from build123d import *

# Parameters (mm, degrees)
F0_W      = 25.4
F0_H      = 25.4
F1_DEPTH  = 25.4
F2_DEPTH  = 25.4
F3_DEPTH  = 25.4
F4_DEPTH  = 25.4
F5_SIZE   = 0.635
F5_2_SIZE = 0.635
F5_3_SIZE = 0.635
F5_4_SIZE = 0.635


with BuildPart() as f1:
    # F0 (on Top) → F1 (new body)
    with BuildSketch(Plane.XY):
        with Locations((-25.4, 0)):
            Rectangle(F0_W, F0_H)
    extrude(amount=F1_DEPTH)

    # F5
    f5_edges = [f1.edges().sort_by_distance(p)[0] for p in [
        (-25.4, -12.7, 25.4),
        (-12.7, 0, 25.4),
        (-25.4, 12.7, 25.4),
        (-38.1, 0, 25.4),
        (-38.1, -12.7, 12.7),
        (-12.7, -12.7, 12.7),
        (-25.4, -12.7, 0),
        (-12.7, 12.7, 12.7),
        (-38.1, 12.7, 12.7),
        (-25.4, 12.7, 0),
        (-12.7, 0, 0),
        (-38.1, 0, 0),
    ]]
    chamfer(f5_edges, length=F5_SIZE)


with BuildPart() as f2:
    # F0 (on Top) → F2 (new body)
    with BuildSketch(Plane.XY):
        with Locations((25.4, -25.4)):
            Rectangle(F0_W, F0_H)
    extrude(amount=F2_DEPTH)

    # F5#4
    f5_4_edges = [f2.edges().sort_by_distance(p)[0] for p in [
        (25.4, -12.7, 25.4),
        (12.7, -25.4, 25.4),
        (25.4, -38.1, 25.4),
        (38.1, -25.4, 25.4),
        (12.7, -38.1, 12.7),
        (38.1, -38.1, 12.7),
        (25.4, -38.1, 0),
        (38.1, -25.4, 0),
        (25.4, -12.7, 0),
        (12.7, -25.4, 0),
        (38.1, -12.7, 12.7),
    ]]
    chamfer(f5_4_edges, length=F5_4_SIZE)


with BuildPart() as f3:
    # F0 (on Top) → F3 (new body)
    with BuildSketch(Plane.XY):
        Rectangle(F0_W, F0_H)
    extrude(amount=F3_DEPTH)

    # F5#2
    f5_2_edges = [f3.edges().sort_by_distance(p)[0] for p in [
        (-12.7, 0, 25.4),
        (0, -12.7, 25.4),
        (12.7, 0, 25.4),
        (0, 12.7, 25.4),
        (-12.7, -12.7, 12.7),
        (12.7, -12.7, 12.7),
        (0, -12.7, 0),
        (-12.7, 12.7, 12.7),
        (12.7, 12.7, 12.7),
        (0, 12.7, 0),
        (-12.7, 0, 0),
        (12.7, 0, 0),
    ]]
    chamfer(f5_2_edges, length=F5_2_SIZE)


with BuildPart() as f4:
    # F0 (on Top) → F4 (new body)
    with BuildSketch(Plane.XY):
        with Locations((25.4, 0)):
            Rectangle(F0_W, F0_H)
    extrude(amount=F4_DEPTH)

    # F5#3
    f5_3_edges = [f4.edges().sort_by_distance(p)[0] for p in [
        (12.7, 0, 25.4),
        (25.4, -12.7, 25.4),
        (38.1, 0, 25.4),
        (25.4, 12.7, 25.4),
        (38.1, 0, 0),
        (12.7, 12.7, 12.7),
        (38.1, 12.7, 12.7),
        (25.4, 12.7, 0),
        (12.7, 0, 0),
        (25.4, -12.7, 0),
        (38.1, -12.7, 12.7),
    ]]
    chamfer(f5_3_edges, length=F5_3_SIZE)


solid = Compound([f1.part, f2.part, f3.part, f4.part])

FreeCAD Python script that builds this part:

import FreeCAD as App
import Part
import Sketcher
from FreeCAD import Vector
Q = App.Units.Quantity


def edges_at(feature, points):
    """Names of the edges that pass closest to the given points."""
    edges = feature.Shape.Edges
    near = lambda p: min(range(len(edges)), key=lambda i: edges[i].distToShape(Part.Vertex(*p))[0])
    return sorted({f"Edge{near(p) + 1}" for p in points})

doc = App.newDocument("Part")
body = doc.addObject("PartDesign::Body", "Body")

# Sketch on XY plane
sketch1 = body.newObject("Sketcher::SketchObject", "Sketch")
sketch1.AttachmentSupport = (doc.getObject("XY_Plane"), [""])
sketch1.MapMode = "FlatFace"
sketch1.addGeometry(Part.LineSegment(Vector(-38, 13, 0), Vector(-38, -13, 0)), False)
sketch1.addGeometry(Part.LineSegment(Vector(-38, -13, 0), Vector(-13, -13, 0)), False)
sketch1.addGeometry(Part.LineSegment(Vector(-13, -13, 0), Vector(-13, 13, 0)), False)
sketch1.addGeometry(Part.LineSegment(Vector(-13, 13, 0), Vector(-38, 13, 0)), False)
sketch1.addConstraint(Sketcher.Constraint("Coincident", 0, 2, 1, 1))
sketch1.addConstraint(Sketcher.Constraint("Coincident", 1, 2, 2, 1))
sketch1.addConstraint(Sketcher.Constraint("Coincident", 2, 2, 3, 1))
sketch1.addConstraint(Sketcher.Constraint("Coincident", 3, 2, 0, 1))
sketch1.addConstraint(Sketcher.Constraint("Vertical", 0))
sketch1.addConstraint(Sketcher.Constraint("Horizontal", 1))
sketch1.addConstraint(Sketcher.Constraint("Vertical", 2))
sketch1.addConstraint(Sketcher.Constraint("Horizontal", 3))
sketch1.addConstraint(Sketcher.Constraint("Equal", 3, 0))
sketch1.addConstraint(Sketcher.Constraint("DistanceX", 1, 1, 1, 2, Q("1 in")))
sketch1.addConstraint(Sketcher.Constraint("DistanceX", 0, 2, -1, 1, Q("1.5 in")))
sketch1.addConstraint(Sketcher.Constraint("DistanceY", 0, 2, -1, 1, Q("0.5 in")))
pad1 = body.newObject("PartDesign::Pad", "Pad")
pad1.Profile = sketch1
pad1.Length = Q("1 in")
doc.recompute()

chamfer = body.newObject("PartDesign::Chamfer", "Chamfer")
chamfer.Base = (pad1, ["Edge1"])
chamfer.UseAllEdges = True
chamfer.Size = Q("0.025 in")
body2 = doc.addObject("PartDesign::Body", "Body001")

# Sketch on XY plane
sketch2 = body2.newObject("Sketcher::SketchObject", "Sketch001")
sketch2.AttachmentSupport = (doc.getObject("XY_Plane001"), [""])
sketch2.MapMode = "FlatFace"
sketch2.addGeometry(Part.LineSegment(Vector(13, -13, 0), Vector(13, -38, 0)), False)
sketch2.addGeometry(Part.LineSegment(Vector(13, -38, 0), Vector(38, -38, 0)), False)
sketch2.addGeometry(Part.LineSegment(Vector(38, -38, 0), Vector(38, -13, 0)), False)
sketch2.addGeometry(Part.LineSegment(Vector(38, -13, 0), Vector(13, -13, 0)), False)
sketch2.addConstraint(Sketcher.Constraint("Coincident", 0, 2, 1, 1))
sketch2.addConstraint(Sketcher.Constraint("Coincident", 1, 2, 2, 1))
sketch2.addConstraint(Sketcher.Constraint("Coincident", 2, 2, 3, 1))
sketch2.addConstraint(Sketcher.Constraint("Coincident", 3, 2, 0, 1))
sketch2.addConstraint(Sketcher.Constraint("Vertical", 0))
sketch2.addConstraint(Sketcher.Constraint("Horizontal", 1))
sketch2.addConstraint(Sketcher.Constraint("Vertical", 2))
sketch2.addConstraint(Sketcher.Constraint("Horizontal", 3))
sketch2.addConstraint(Sketcher.Constraint("Equal", 3, 0))
sketch2.addConstraint(Sketcher.Constraint("DistanceX", 1, 1, 1, 2, Q("1 in")))
sketch2.addConstraint(Sketcher.Constraint("DistanceX", -1, 1, 0, 2, Q("0.5 in")))
sketch2.addConstraint(Sketcher.Constraint("DistanceY", 0, 2, -1, 1, Q("1.5 in")))
pad2 = body2.newObject("PartDesign::Pad", "Pad001")
pad2.Profile = sketch2
pad2.Length = Q("1 in")
doc.recompute()

chamfer2 = body2.newObject("PartDesign::Chamfer", "Chamfer001")
chamfer2.Base = (pad2, edges_at(pad2, [
    (25.4, -12.7, 25.4),
    (12.7, -25.4, 25.4),
    (25.4, -38.1, 25.4),
    (38.1, -25.4, 25.4),
    (12.7, -38.1, 12.7),
    (38.1, -38.1, 12.7),
    (25.4, -38.1, 0),
    (38.1, -25.4, 0),
    (25.4, -12.7, 0),
    (12.7, -25.4, 0),
    (38.1, -12.7, 12.7),
]))
chamfer2.Size = Q("0.025 in")
body3 = doc.addObject("PartDesign::Body", "Body002")

# Sketch on XY plane
sketch3 = body3.newObject("Sketcher::SketchObject", "Sketch002")
sketch3.AttachmentSupport = (doc.getObject("XY_Plane002"), [""])
sketch3.MapMode = "FlatFace"
sketch3.addGeometry(Part.LineSegment(Vector(-13, 13, 0), Vector(-13, -13, 0)), False)
sketch3.addGeometry(Part.LineSegment(Vector(-13, -13, 0), Vector(13, -13, 0)), False)
sketch3.addGeometry(Part.LineSegment(Vector(13, -13, 0), Vector(13, 13, 0)), False)
sketch3.addGeometry(Part.LineSegment(Vector(13, 13, 0), Vector(-13, 13, 0)), False)
sketch3.addConstraint(Sketcher.Constraint("Coincident", 0, 2, 1, 1))
sketch3.addConstraint(Sketcher.Constraint("Coincident", 1, 2, 2, 1))
sketch3.addConstraint(Sketcher.Constraint("Coincident", 2, 2, 3, 1))
sketch3.addConstraint(Sketcher.Constraint("Coincident", 3, 2, 0, 1))
sketch3.addConstraint(Sketcher.Constraint("Vertical", 0))
sketch3.addConstraint(Sketcher.Constraint("Horizontal", 1))
sketch3.addConstraint(Sketcher.Constraint("Vertical", 2))
sketch3.addConstraint(Sketcher.Constraint("Horizontal", 3))
sketch3.addConstraint(Sketcher.Constraint("Symmetric", 0, 2, 2, 2, -1, 1))
sketch3.addConstraint(Sketcher.Constraint("Equal", 3, 0))
sketch3.addConstraint(Sketcher.Constraint("DistanceX", 1, 1, 1, 2, Q("1 in")))
pad3 = body3.newObject("PartDesign::Pad", "Pad002")
pad3.Profile = sketch3
pad3.Length = Q("1 in")
doc.recompute()

chamfer3 = body3.newObject("PartDesign::Chamfer", "Chamfer002")
chamfer3.Base = (pad3, ["Edge1"])
chamfer3.UseAllEdges = True
chamfer3.Size = Q("0.025 in")
body4 = doc.addObject("PartDesign::Body", "Body003")

# Sketch on XY plane
sketch4 = body4.newObject("Sketcher::SketchObject", "Sketch003")
sketch4.AttachmentSupport = (doc.getObject("XY_Plane003"), [""])
sketch4.MapMode = "FlatFace"
sketch4.addGeometry(Part.LineSegment(Vector(13, 13, 0), Vector(13, -13, 0)), False)
sketch4.addGeometry(Part.LineSegment(Vector(13, -13, 0), Vector(38, -13, 0)), False)
sketch4.addGeometry(Part.LineSegment(Vector(38, -13, 0), Vector(38, 13, 0)), False)
sketch4.addGeometry(Part.LineSegment(Vector(38, 13, 0), Vector(13, 13, 0)), False)
sketch4.addConstraint(Sketcher.Constraint("Coincident", 0, 2, 1, 1))
sketch4.addConstraint(Sketcher.Constraint("Coincident", 1, 2, 2, 1))
sketch4.addConstraint(Sketcher.Constraint("Coincident", 2, 2, 3, 1))
sketch4.addConstraint(Sketcher.Constraint("Coincident", 3, 2, 0, 1))
sketch4.addConstraint(Sketcher.Constraint("Vertical", 0))
sketch4.addConstraint(Sketcher.Constraint("Horizontal", 1))
sketch4.addConstraint(Sketcher.Constraint("Vertical", 2))
sketch4.addConstraint(Sketcher.Constraint("Horizontal", 3))
sketch4.addConstraint(Sketcher.Constraint("Equal", 3, 0))
sketch4.addConstraint(Sketcher.Constraint("DistanceX", 1, 1, 1, 2, Q("1 in")))
sketch4.addConstraint(Sketcher.Constraint("DistanceX", -1, 1, 0, 2, Q("0.5 in")))
sketch4.addConstraint(Sketcher.Constraint("DistanceY", 0, 2, -1, 1, Q("0.5 in")))
pad4 = body4.newObject("PartDesign::Pad", "Pad003")
pad4.Profile = sketch4
pad4.Length = Q("1 in")
doc.recompute()

chamfer4 = body4.newObject("PartDesign::Chamfer", "Chamfer003")
chamfer4.Base = (pad4, edges_at(pad4, [
    (12.7, 0, 25.4),
    (25.4, -12.7, 25.4),
    (38.1, 0, 25.4),
    (25.4, 12.7, 25.4),
    (38.1, 0, 0),
    (12.7, 12.7, 12.7),
    (38.1, 12.7, 12.7),
    (25.4, 12.7, 0),
    (12.7, 0, 0),
    (25.4, -12.7, 0),
    (38.1, -12.7, 12.7),
]))
chamfer4.Size = Q("0.025 in")

doc.recompute()
